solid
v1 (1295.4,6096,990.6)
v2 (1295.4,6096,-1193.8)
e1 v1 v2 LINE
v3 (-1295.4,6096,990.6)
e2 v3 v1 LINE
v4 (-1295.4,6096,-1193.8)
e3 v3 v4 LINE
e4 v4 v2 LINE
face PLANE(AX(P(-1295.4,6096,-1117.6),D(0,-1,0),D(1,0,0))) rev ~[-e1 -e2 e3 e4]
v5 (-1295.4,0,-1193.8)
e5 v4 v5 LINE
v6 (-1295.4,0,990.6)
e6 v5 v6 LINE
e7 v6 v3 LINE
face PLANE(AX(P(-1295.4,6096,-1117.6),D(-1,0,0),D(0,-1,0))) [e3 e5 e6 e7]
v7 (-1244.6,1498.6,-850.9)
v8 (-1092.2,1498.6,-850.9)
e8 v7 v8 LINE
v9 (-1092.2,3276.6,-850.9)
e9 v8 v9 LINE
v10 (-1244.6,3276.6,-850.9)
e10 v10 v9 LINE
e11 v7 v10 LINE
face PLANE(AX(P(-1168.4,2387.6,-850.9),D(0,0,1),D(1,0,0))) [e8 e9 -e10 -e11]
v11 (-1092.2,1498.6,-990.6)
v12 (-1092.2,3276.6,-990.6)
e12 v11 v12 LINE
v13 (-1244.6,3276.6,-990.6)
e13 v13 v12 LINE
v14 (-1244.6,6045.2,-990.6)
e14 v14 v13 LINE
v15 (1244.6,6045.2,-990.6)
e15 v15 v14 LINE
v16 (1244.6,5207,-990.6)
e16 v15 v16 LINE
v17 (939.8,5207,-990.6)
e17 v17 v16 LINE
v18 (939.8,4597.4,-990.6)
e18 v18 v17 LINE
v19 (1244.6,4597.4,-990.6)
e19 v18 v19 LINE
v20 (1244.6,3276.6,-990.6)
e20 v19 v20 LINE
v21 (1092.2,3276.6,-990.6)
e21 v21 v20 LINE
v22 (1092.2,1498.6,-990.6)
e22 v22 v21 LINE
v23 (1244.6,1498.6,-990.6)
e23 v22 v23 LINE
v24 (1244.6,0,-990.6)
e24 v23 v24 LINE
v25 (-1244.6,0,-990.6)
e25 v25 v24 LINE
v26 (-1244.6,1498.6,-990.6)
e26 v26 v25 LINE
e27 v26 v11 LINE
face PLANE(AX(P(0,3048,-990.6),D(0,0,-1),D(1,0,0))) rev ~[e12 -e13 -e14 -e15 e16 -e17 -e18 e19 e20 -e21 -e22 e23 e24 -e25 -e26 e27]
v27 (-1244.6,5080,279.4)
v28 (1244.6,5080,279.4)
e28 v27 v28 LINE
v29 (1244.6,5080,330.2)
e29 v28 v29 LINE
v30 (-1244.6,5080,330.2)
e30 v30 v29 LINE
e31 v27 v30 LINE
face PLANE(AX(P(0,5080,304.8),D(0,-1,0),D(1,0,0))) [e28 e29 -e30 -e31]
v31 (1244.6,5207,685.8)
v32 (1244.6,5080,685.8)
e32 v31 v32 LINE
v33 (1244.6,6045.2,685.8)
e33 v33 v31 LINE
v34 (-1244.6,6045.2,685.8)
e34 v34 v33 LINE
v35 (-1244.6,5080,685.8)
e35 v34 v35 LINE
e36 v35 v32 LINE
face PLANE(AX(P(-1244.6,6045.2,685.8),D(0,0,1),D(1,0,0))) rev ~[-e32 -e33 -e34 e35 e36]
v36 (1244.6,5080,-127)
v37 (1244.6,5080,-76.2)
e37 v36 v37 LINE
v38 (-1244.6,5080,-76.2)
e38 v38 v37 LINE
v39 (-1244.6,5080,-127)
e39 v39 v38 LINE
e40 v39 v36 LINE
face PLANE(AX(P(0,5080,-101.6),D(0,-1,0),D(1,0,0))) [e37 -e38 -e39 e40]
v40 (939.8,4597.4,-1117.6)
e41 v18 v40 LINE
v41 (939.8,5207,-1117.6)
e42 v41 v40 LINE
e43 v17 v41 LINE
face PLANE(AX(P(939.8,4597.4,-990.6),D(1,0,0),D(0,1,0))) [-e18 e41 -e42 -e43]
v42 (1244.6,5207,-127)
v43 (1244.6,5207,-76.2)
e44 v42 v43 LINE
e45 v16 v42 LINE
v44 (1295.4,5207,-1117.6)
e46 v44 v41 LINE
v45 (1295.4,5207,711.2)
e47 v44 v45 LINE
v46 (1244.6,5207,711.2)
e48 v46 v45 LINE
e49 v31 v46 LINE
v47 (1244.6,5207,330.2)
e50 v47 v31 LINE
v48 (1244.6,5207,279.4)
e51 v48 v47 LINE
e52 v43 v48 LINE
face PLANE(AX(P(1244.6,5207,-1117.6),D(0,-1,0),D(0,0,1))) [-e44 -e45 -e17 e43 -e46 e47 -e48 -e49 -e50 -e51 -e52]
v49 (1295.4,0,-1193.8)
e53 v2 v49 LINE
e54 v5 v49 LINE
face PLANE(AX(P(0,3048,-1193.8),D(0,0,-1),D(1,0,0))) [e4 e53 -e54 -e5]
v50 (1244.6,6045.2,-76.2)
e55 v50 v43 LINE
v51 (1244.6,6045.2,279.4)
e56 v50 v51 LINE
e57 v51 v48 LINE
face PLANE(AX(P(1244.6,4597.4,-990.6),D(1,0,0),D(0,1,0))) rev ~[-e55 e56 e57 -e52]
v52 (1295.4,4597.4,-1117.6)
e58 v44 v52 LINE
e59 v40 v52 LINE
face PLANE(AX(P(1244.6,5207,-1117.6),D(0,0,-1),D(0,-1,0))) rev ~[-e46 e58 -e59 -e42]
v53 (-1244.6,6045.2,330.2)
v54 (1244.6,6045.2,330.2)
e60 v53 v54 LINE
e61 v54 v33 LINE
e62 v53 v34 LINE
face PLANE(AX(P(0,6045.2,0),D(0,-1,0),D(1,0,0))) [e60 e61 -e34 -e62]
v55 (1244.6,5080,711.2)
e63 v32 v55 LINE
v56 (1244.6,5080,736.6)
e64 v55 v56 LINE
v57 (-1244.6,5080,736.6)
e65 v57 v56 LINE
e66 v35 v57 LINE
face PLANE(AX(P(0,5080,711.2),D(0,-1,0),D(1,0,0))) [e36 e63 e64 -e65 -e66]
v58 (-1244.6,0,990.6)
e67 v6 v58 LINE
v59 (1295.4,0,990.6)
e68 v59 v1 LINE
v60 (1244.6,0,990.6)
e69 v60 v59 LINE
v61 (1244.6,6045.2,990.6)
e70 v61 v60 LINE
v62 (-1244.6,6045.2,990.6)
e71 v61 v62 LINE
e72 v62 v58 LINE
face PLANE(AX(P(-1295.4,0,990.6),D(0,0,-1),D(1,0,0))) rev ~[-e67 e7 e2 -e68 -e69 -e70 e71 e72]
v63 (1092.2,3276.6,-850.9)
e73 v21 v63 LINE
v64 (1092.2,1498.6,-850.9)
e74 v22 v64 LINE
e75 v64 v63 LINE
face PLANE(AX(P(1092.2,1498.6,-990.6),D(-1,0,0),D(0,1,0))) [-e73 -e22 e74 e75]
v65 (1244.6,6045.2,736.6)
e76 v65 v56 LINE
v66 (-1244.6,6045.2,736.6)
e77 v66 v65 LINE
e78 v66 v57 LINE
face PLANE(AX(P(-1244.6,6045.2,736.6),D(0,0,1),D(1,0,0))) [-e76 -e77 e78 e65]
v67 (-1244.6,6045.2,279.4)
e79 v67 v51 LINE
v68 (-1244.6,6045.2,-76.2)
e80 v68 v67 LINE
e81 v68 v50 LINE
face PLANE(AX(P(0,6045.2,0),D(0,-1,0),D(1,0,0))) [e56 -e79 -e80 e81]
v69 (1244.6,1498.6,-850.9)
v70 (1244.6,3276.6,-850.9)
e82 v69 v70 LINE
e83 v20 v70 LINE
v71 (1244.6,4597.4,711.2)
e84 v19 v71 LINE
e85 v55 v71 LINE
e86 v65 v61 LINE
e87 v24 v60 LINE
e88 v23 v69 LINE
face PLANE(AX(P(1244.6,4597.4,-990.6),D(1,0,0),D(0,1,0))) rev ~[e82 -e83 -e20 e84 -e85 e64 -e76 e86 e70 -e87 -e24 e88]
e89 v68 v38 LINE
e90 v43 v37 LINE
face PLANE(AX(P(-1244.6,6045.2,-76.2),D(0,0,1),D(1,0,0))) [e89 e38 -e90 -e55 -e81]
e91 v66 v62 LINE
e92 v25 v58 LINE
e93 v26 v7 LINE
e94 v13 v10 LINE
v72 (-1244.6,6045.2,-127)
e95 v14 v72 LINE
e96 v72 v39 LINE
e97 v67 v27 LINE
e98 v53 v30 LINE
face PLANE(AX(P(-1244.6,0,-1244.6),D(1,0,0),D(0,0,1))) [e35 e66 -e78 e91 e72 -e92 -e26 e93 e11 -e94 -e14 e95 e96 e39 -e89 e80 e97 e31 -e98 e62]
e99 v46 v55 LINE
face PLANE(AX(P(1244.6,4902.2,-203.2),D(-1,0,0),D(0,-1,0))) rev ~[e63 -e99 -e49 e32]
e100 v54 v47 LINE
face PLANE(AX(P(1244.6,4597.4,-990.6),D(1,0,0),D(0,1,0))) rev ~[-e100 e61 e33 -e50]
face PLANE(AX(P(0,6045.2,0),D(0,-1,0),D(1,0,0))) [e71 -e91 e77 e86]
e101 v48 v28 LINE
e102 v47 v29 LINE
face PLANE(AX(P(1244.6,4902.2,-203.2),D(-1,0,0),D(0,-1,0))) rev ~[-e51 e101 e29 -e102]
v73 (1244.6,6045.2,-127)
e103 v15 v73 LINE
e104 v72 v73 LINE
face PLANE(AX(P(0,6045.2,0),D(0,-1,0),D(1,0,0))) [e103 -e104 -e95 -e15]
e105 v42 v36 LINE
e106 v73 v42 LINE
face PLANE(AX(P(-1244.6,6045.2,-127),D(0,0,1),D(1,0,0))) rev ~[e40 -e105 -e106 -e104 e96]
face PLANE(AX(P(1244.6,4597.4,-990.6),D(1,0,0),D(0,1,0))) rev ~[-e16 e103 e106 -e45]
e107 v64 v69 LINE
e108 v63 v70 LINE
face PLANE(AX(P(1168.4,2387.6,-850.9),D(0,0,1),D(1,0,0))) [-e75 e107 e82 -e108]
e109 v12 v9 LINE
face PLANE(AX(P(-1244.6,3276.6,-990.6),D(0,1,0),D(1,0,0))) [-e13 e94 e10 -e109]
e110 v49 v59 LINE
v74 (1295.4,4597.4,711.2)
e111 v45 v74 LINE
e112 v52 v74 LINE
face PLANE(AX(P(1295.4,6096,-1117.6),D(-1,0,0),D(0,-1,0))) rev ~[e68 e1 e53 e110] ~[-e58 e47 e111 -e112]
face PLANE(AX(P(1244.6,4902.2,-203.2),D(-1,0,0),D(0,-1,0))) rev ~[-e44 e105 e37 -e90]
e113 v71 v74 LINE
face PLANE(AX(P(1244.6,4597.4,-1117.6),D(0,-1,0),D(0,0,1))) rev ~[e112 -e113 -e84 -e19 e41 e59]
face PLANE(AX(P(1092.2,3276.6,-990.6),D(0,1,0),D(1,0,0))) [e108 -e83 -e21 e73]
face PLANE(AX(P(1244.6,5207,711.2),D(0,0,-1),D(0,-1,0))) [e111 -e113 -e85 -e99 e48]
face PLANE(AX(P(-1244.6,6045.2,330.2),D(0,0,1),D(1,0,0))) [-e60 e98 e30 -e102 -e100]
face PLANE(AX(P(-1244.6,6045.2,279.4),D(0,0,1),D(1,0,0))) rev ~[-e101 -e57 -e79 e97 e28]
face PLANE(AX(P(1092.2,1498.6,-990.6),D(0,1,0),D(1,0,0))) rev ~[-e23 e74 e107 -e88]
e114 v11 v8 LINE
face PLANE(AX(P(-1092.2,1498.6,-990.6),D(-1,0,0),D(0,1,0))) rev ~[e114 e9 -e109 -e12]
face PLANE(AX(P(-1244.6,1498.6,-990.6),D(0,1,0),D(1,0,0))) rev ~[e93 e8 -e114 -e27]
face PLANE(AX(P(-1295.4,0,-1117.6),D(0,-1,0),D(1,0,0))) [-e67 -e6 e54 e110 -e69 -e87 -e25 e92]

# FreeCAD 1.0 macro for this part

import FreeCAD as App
import Part
import Sketcher
from FreeCAD import Vector
Q = App.Units.Quantity


def add_polygon(sketch, points):
    """Adds a closed chain of lines whose ends are joined by coincident constraints."""
    first, n = sketch.GeometryCount, len(points)
    for a, b in zip(points, points[1:] + points[:1]):
        sketch.addGeometry(Part.LineSegment(App.Vector(*a, 0), App.Vector(*b, 0)), False)
    for i in range(n):
        sketch.addConstraint(Sketcher.Constraint("Coincident", first + i, 2, first + (i + 1) % n, 1))

doc = App.newDocument("Part")
body = doc.addObject("PartDesign::Body", "Body")

sketch1 = doc.addObject("Sketcher::SketchObject", "Sketch")
body.addObject(sketch1)
sketch1.AttachmentSupport = (doc.XZ_Plane, [""])
sketch1.MapMode = "FlatFace"
add_polygon(sketch1, [(-1295, 991), (-1295, -991), (1295, -991), (1295, 991)])
sketch1.addConstraint([
    Sketcher.Constraint("Vertical", 0),
    Sketcher.Constraint("Horizontal", 1),
    Sketcher.Constraint("Vertical", 2),
    Sketcher.Constraint("Horizontal", 3),
    Sketcher.Constraint("Symmetric", 0, 2, 2, 2, -1, 1),
    Sketcher.Constraint("DistanceX", 1, 1, 1, 2, Q("102 in")),
    Sketcher.Constraint("DistanceY", 0, 2, 0, 1, Q("78 in")),
])
pad1 = doc.addObject("PartDesign::Pad", "Pad")
body.addObject(pad1)
pad1.Profile = sketch1
pad1.Length = Q("240 in")
pad1.Reversed = True

sketch2 = doc.addObject("Sketcher::SketchObject", "Sketch001")
body.addObject(sketch2)
sketch2.AttachmentSupport = (doc.XZ_Plane, [""])
sketch2.MapMode = "FlatFace"
add_polygon(sketch2, [(-1245, 1245), (-1245, -1245), (1245, -1245), (1245, 1245)])
sketch2.addConstraint([
    Sketcher.Constraint("Vertical", 0),
    Sketcher.Constraint("Horizontal", 1),
    Sketcher.Constraint("Vertical", 2),
    Sketcher.Constraint("Horizontal", 3),
    Sketcher.Constraint("Symmetric", 0, 2, 2, 2, -1, 1),
    Sketcher.Constraint("Equal", 3, 0),
    Sketcher.Constraint("DistanceX", 1, 1, 1, 2, Q("98 in")),
])
pocket1 = doc.addObject("PartDesign::Pocket", "Pocket")
body.addObject(pocket1)
pocket1.Profile = sketch2
pocket1.Length = Q("238 in")

sketch3 = doc.addObject("Sketcher::SketchObject", "Sketch002")
body.addObject(sketch3)
sketch3.AttachmentSupport = (doc.XY_Plane, [""])
sketch3.MapMode = "FlatFace"
sketch3.AttachmentOffset = App.Placement(Vector(0, 0, 39 * 25.4), App.Rotation())
add_polygon(sketch3, [(-1245, 6045), (-1245, 0), (1245, 0), (1245, 6045)])
sketch3.addConstraint([
    Sketcher.Constraint("Vertical", 0),
    Sketcher.Constraint("Horizontal", 1),
    Sketcher.Constraint("Vertical", 2),
    Sketcher.Constraint("Horizontal", 3),
    Sketcher.Constraint("Symmetric", 0, 2, 1, 2, -1, 1),
    Sketcher.Constraint("DistanceX", 1, 1, 1, 2, Q("98 in")),
    Sketcher.Constraint("DistanceY", 0, 2, 0, 1, Q("238 in")),
])
pocket2 = doc.addObject("PartDesign::Pocket", "Pocket001")
body.addObject(pocket2)
pocket2.Profile = sketch3
pocket2.Length = Q("3 in")

sketch4 = doc.addObject("Sketcher::SketchObject", "Sketch003")
body.addObject(sketch4)
sketch4.AttachmentSupport = (doc.XY_Plane, [""])
sketch4.MapMode = "FlatFace"
sketch4.AttachmentOffset = App.Placement(Vector(0, 0, -39 * 25.4), App.Rotation())
add_polygon(sketch4, [(-1295, 0), (-1295, 6096), (1295, 6096), (1295, 0)])
sketch4.addConstraint([
    Sketcher.Constraint("Vertical", 0),
    Sketcher.Constraint("Horizontal", 1),
    Sketcher.Constraint("Vertical", 2),
    Sketcher.Constraint("Horizontal", 3),
    Sketcher.Constraint("Symmetric", 2, 2, 3, 2, -1, 1),
    Sketcher.Constraint("DistanceX", 1, 1, 1, 2, Q("102 in")),
    Sketcher.Constraint("DistanceY", 0, 1, 0, 2, Q("240 in")),
])
pad2 = doc.addObject("PartDesign::Pad", "Pad001")
body.addObject(pad2)
pad2.Profile = sketch4
pad2.Length = Q("5 in")
pad2.Reversed = True

sketch5 = doc.addObject("Sketcher::SketchObject", "Sketch004")
body.addObject(sketch5)
sketch5.AttachmentSupport = (doc.XY_Plane, [""])
sketch5.MapMode = "FlatFace"
sketch5.AttachmentOffset = App.Placement(Vector(0, 0, -39 * 25.4), App.Rotation())
add_polygon(sketch5, [(940, 5207), (940, 4597), (1245, 4597), (1245, 5207)])
sketch5.addConstraint([
    Sketcher.Constraint("Vertical", 0),
    Sketcher.Constraint("Horizontal", 1),
    Sketcher.Constraint("Vertical", 2),
    Sketcher.Constraint("Horizontal", 3),
    Sketcher.Constraint("DistanceX", 1, 1, 1, 2, Q("12 in")),
    Sketcher.Constraint("DistanceY", 0, 2, 0, 1, Q("24 in")),
    Sketcher.Constraint("DistanceX", -1, 1, 0, 2, Q("37 in")),
    Sketcher.Constraint("DistanceY", -1, 1, 0, 2, Q("181 in")),
])
pocket3 = doc.addObject("PartDesign::Pocket", "Pocket002")
body.addObject(pocket3)
pocket3.Profile = sketch5
pocket3.Length = Q("5.5 in")

sketch6 = doc.addObject("Sketcher::SketchObject", "Sketch005")
body.addObject(sketch6)
sketch6.AttachmentSupport = (doc.XY_Plane, [""])
sketch6.MapMode = "FlatFace"
sketch6.AttachmentOffset = App.Placement(Vector(0, 0, -44 * 25.4), App.Rotation())
add_polygon(sketch6, [(-1295, 0), (-1295, 6096), (1295, 6096), (1295, 0)])
sketch6.addConstraint([
    Sketcher.Constraint("Vertical", 0),
    Sketcher.Constraint("Horizontal", 1),
    Sketcher.Constraint("Vertical", 2),
    Sketcher.Constraint("Horizontal", 3),
    Sketcher.Constraint("Symmetric", 2, 2, 3, 2, -1, 1),
    Sketcher.Constraint("DistanceX", 1, 1, 1, 2, Q("102 in")),
    Sketcher.Constraint("DistanceY", 0, 1, 0, 2, Q("240 in")),
])
pad3 = doc.addObject("PartDesign::Pad", "Pad002")
body.addObject(pad3)
pad3.Profile = sketch6
pad3.Length = Q("3 in")
pad3.Reversed = True

sketch7 = doc.addObject("Sketcher::SketchObject", "Sketch006")
body.addObject(sketch7)
sketch7.AttachmentSupport = (doc.XY_Plane, [""])
sketch7.MapMode = "FlatFace"
sketch7.AttachmentOffset = App.Placement(Vector(0, 0, -39 * 25.4), App.Rotation())
add_polygon(sketch7, [(1092, 3277), (1092, 1499), (1245, 1499), (1245, 3277)])
add_polygon(sketch7, [(-1245, 3277), (-1245, 1499), (-1092, 1499), (-1092, 3277)])
sketch7.addConstraint([
    Sketcher.Constraint("Vertical", 0),
    Sketcher.Constraint("Horizontal", 1),
    Sketcher.Constraint("Vertical", 2),
    Sketcher.Constraint("Horizontal", 3),
    Sketcher.Constraint("Vertical", 4),
    Sketcher.Constraint("Horizontal", 5),
    Sketcher.Constraint("Vertical", 6),
    Sketcher.Constraint("Horizontal", 7),
    Sketcher.Constraint("Symmetric", 1, 2, 4, 2, -2),
    Sketcher.Constraint("Symmetric", 3, 2, 6, 2, -2),
    Sketcher.Constraint("DistanceX", 1, 1, 1, 2, Q("6 in")),
    Sketcher.Constraint("DistanceY", 0, 2, 0, 1, Q("70 in")),
    Sketcher.Constraint("DistanceX", -1, 1, 0, 2, Q("43 in")),
    Sketcher.Constraint("DistanceY", -1, 1, 0, 2, Q("59 in")),
])
pad4 = doc.addObject("PartDesign::Pad", "Pad003")
body.addObject(pad4)
pad4.Profile = sketch7
pad4.Length = Q("5.5 in")

sketch8 = doc.addObject("Sketcher::SketchObject", "Sketch007")
body.addObject(sketch8)
sketch8.AttachmentSupport = (doc.XZ_Plane, [""])
sketch8.MapMode = "FlatFace"
sketch8.AttachmentOffset = App.Placement(Vector(0, 0, -238 * 25.4), App.Rotation())
add_polygon(sketch8, [(-1245, 737), (-1245, 686), (1245, 686), (1245, 737)])
add_polygon(sketch8, [(-1245, 330), (-1245, 279), (1245, 279), (1245, 330)])
add_polygon(sketch8, [(-1245, -76), (-1245, -127), (1245, -127), (1245, -76)])
sketch8.addConstraint([
    Sketcher.Constraint("Vertical", 0),
    Sketcher.Constraint("Horizontal", 1),
    Sketcher.Constraint("Vertical", 2),
    Sketcher.Constraint("Horizontal", 3),
    Sketcher.Constraint("Vertical", 4),
    Sketcher.Constraint("Horizontal", 5),
    Sketcher.Constraint("Vertical", 6),
    Sketcher.Constraint("Horizontal", 7),
    Sketcher.Constraint("Vertical", 8),
    Sketcher.Constraint("Horizontal", 9),
    Sketcher.Constraint("Vertical", 10),
    Sketcher.Constraint("Horizontal", 11),
    Sketcher.Constraint("Vertical", 3, 2, 4, 2),
    Sketcher.Constraint("Vertical", 2, 2, 5, 2),
    Sketcher.Constraint("Vertical", 7, 2, 8, 2),
    Sketcher.Constraint("Vertical", 6, 2, 9, 2),
    Sketcher.Constraint("Equal", 2, 4),
    Sketcher.Constraint("Equal", 6, 8),
    Sketcher.Constraint("DistanceX", 1, 1, 1, 2, Q("98 in")),
    Sketcher.Constraint("DistanceY", 0, 2, 0, 1, Q("2 in")),
    Sketcher.Constraint("DistanceX", 0, 2, -1, 1, Q("49 in")),
    Sketcher.Constraint("DistanceY", -1, 1, 0, 2, Q("27 in")),
    Sketcher.Constraint("DistanceY", -1, 1, 4, 2, Q("11 in")),
    Sketcher.Constraint("DistanceY", 8, 2, -1, 1, Q("5 in")),
])
pad5 = doc.addObject("PartDesign::Pad", "Pad004")
body.addObject(pad5)
pad5.Profile = sketch8
pad5.Length = Q("38 in")

sketch9 = doc.addObject("Sketcher::SketchObject", "Sketch008")
body.addObject(sketch9)
sketch9.AttachmentSupport = (doc.YZ_Plane, [""])
sketch9.MapMode = "FlatFace"
sketch9.AttachmentOffset = App.Placement(Vector(0, 0, 49 * 25.4), App.Rotation())
add_polygon(sketch9, [(5207, 711), (5207, -1118), (4597, -1118), (4597, 711)])
sketch9.addConstraint([
    Sketcher.Constraint("Vertical", 0),
    Sketcher.Constraint("Horizontal", 1),
    Sketcher.Constraint("Vertical", 2),
    Sketcher.Constraint("Horizontal", 3),
    Sketcher.Constraint("DistanceX", 1, 2, 1, 1, Q("24 in")),
    Sketcher.Constraint("DistanceY", 0, 2, 0, 1, Q("72 in")),
    Sketcher.Constraint("DistanceX", -1, 1, 0, 2, Q("205 in")),
    Sketcher.Constraint("DistanceY", 0, 2, -1, 1, Q("44 in")),
])
pocket4 = doc.addObject("PartDesign::Pocket", "Pocket003")
body.addObject(pocket4)
pocket4.Profile = sketch9
pocket4.Type = "ThroughAll"
pocket4.Reversed = True

doc.recompute()
